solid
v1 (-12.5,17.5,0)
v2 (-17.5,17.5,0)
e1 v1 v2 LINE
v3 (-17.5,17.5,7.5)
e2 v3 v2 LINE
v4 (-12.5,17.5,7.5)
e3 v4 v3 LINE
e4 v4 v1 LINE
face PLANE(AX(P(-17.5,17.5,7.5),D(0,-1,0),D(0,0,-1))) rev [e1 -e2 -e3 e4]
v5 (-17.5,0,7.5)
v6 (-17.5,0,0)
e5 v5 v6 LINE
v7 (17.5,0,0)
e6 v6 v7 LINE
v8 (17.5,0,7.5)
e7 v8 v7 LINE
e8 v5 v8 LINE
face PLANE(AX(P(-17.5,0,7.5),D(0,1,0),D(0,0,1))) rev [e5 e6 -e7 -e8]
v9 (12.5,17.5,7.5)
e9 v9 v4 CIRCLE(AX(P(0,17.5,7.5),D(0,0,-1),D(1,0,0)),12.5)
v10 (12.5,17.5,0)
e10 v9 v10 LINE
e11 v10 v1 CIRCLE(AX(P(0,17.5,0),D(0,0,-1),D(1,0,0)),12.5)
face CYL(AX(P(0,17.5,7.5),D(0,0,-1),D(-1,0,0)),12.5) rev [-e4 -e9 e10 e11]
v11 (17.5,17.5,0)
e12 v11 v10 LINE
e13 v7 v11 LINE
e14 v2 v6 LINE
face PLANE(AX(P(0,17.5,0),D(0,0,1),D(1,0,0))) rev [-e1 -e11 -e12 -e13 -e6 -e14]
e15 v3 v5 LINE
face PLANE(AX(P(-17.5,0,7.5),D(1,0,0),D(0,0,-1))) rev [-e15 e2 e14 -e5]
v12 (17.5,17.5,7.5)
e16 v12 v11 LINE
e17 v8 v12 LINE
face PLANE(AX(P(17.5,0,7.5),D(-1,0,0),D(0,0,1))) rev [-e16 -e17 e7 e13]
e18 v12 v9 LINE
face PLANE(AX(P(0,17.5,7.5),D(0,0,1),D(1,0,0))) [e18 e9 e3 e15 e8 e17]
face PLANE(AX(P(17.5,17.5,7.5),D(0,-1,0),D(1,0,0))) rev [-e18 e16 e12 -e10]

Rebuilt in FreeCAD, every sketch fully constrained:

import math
import FreeCAD as App
import Part
import Sketcher

V = App.Vector
Q = App.Units.Quantity

doc = App.newDocument("Part")
body = doc.addObject("PartDesign::Body", "Body")

sketch1 = body.newObject("Sketcher::SketchObject", "Sketch")
sketch1.AttachmentSupport = (doc.getObject("XY_Plane"), [""])
sketch1.MapMode = "FlatFace"
sketch1.addGeometry([
    Part.LineSegment(V(-17.5, 0, 0), V(17.5, 0, 0)),
    Part.LineSegment(V(17.5, 0, 0), V(17.5, 17.5, 0)),
    Part.LineSegment(V(17.5, 17.5, 0), V(12.5, 17.5, 0)),
    Part.ArcOfCircle(Part.Circle(V(0, 17.5, 0), V(0, 0, 1), 12.5), math.radians(180), math.radians(360)),
    Part.LineSegment(V(-12.5, 17.5, 0), V(-17.5, 17.5, 0)),
    Part.LineSegment(V(-17.5, 17.5, 0), V(-17.5, 0, 0)),
], False)
sketch1.addConstraint([
    Sketcher.Constraint("Coincident", 0, 2, 1, 1),
    Sketcher.Constraint("Coincident", 1, 2, 2, 1),
    Sketcher.Constraint("Coincident", 2, 2, 3, 2),
    Sketcher.Constraint("Coincident", 3, 1, 4, 1),
    Sketcher.Constraint("Coincident", 4, 2, 5, 1),
    Sketcher.Constraint("Coincident", 5, 2, 0, 1),
    Sketcher.Constraint("Horizontal", 0),
    Sketcher.Constraint("Vertical", 1),
    Sketcher.Constraint("Horizontal", 2),
    Sketcher.Constraint("Horizontal", 4),
    Sketcher.Constraint("Vertical", 5),
    Sketcher.Constraint("Symmetric", 0, 2, 5, 2, -1, 1),
    Sketcher.Constraint("Symmetric", 2, 2, 3, 1, -2),
    Sketcher.Constraint("Horizontal", 3, 3, 1, 2),
    Sketcher.Constraint("Radius", 3, Q("12.5 mm")),
    Sketcher.Constraint("DistanceX", 0, 1, 0, 2, Q("35 mm")),
    Sketcher.Constraint("DistanceY", 1, 1, 1, 2, Q("17.5 mm")),
])
pad1 = body.newObject("PartDesign::Pad", "Pad")
pad1.Profile = sketch1
pad1.Length = 7.5

doc.recompute()
